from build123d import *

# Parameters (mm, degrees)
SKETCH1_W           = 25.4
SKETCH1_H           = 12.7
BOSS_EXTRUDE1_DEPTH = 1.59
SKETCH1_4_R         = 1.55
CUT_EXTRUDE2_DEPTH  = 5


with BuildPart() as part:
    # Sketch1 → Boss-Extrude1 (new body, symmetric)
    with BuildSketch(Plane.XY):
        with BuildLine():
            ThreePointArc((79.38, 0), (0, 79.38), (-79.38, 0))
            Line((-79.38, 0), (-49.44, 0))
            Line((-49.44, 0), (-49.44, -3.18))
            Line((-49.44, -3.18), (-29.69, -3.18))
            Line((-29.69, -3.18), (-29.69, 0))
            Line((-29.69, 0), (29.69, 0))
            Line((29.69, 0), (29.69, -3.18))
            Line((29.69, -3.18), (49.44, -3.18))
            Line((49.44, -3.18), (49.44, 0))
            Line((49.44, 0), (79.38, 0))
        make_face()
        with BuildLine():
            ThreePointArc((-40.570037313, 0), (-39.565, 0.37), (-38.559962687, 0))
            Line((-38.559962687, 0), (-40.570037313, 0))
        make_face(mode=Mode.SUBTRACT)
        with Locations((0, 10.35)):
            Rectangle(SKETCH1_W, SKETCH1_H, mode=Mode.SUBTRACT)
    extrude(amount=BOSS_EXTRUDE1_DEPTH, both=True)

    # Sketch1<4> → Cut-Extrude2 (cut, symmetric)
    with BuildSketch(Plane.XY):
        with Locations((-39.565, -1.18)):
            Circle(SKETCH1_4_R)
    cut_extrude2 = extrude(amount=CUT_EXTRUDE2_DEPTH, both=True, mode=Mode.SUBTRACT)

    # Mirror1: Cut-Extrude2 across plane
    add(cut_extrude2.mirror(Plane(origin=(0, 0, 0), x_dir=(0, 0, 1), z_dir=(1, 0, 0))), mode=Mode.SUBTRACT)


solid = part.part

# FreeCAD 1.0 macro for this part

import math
import FreeCAD as App
import Part
import Sketcher

V = App.Vector

doc = App.newDocument("Part")
body = doc.addObject("PartDesign::Body", "Body")

sketch1 = body.newObject("Sketcher::SketchObject", "Sketch")
sketch1.AttachmentSupport = (doc.getObject("XY_Plane"), [""])
sketch1.MapMode = "FlatFace"
sketch1.addGeometry([
    Part.ArcOfCircle(Part.Circle(V(0, 0, 0), V(0, 0, 1), 79.4), math.radians(0), math.radians(180)),
    Part.LineSegment(V(-79.4, 0, 0), V(-49.4, 0, 0)),
    Part.LineSegment(V(-49.4, 0, 0), V(-49.4, -3.2, 0)),
    Part.LineSegment(V(-49.4, -3.2, 0), V(-29.7, -3.2, 0)),
    Part.LineSegment(V(-29.7, -3.2, 0), V(-29.7, 0, 0)),
    Part.LineSegment(V(-29.7, 0, 0), V(29.7, 0, 0)),
    Part.LineSegment(V(29.7, 0, 0), V(29.7, -3.2, 0)),
    Part.LineSegment(V(29.7, -3.2, 0), V(49.4, -3.2, 0)),
    Part.LineSegment(V(49.4, -3.2, 0), V(49.4, 0, 0)),
    Part.LineSegment(V(49.4, 0, 0), V(79.4, 0, 0)),
    Part.LineSegment(V(-38.6, 0, 0), V(-40.6, 0, 0)),
    Part.ArcOfCircle(Part.Circle(V(-39.6, -1.2, 0), V(0, 0, 1), 1.6), math.radians(50), math.radians(130)),
    Part.LineSegment(V(12.7, 4, 0), V(-12.7, 4, 0)),
    Part.LineSegment(V(-12.7, 4, 0), V(-12.7, 16.7, 0)),
    Part.LineSegment(V(-12.7, 16.7, 0), V(12.7, 16.7, 0)),
    Part.LineSegment(V(12.7, 16.7, 0), V(12.7, 4, 0)),
], False)
sketch1.addConstraint([
    Sketcher.Constraint("Coincident", 0, 2, 1, 1),
    Sketcher.Constraint("Coincident", 1, 2, 2, 1),
    Sketcher.Constraint("Coincident", 2, 2, 3, 1),
    Sketcher.Constraint("Coincident", 3, 2, 4, 1),
    Sketcher.Constraint("Coincident", 4, 2, 5, 1),
    Sketcher.Constraint("Coincident", 5, 2, 6, 1),
    Sketcher.Constraint("Coincident", 6, 2, 7, 1),
    Sketcher.Constraint("Coincident", 7, 2, 8, 1),
    Sketcher.Constraint("Coincident", 8, 2, 9, 1),
    Sketcher.Constraint("Coincident", 9, 2, 0, 1),
    Sketcher.Constraint("Coincident", 10, 1, 11, 1),
    Sketcher.Constraint("Coincident", 11, 2, 10, 2),
    Sketcher.Constraint("Coincident", 12, 2, 13, 1),
    Sketcher.Constraint("Coincident", 13, 2, 14, 1),
    Sketcher.Constraint("Coincident", 14, 2, 15, 1),
    Sketcher.Constraint("Coincident", 15, 2, 12, 1),
    Sketcher.Constraint("Horizontal", 1),
    Sketcher.Constraint("Vertical", 2),
    Sketcher.Constraint("Horizontal", 3),
    Sketcher.Constraint("Vertical", 4),
    Sketcher.Constraint("Horizontal", 5),
    Sketcher.Constraint("Vertical", 6),
    Sketcher.Constraint("Horizontal", 7),
    Sketcher.Constraint("Vertical", 8),
    Sketcher.Constraint("Horizontal", 9),
    Sketcher.Constraint("Horizontal", 10),
    Sketcher.Constraint("Horizontal", 12),
    Sketcher.Constraint("Vertical", 13),
    Sketcher.Constraint("Horizontal", 14),
    Sketcher.Constraint("Vertical", 15),
    Sketcher.Constraint("Coincident", 0, 3, -1, 1),
    Sketcher.Constraint("Symmetric", 4, 2, 5, 2, -1, 1),
    Sketcher.Constraint("Symmetric", 1, 2, 8, 2, -1, 1),
    Sketcher.Constraint("PointOnObject", 0, 2, -1),
    Sketcher.Constraint("PointOnObject", 10, 1, -1),
    Sketcher.Constraint("Horizontal", 3, 2, 6, 2),
    Sketcher.Constraint("Radius", 0, 79.38),
    Sketcher.Constraint("Radius", 11, 1.55),
    Sketcher.Constraint("DistanceX", 12, 2, 12, 1, 25.4),
    Sketcher.Constraint("DistanceY", 13, 1, 13, 2, 12.7),
    Sketcher.Constraint("DistanceY", -1, 1, 12, 2, 4.0),
    Sketcher.Constraint("DistanceY", 2, 2, 11, 3, 2.0),
    Sketcher.Constraint("DistanceX", 1, 1, 1, 2, 29.94),
    Sketcher.Constraint("DistanceX", 3, 1, 3, 2, 19.75),
    Sketcher.Constraint("DistanceY", 2, 2, 2, 1, 3.18),
    Sketcher.Constraint("DistanceX", 12, 2, -1, 1, 12.7),
    Sketcher.Constraint("DistanceX", 11, 3, -1, 1, 39.565),
])
pad1 = body.newObject("PartDesign::Pad", "Pad")
pad1.Profile = sketch1
pad1.Length = 3.18
pad1.Midplane = True

sketch2 = body.newObject("Sketcher::SketchObject", "Sketch001")
sketch2.AttachmentSupport = (doc.getObject("XY_Plane"), [""])
sketch2.MapMode = "FlatFace"
sketch2.addGeometry(Part.Circle(V(-39.6, -1.2, 0), V(0, 0, 1), 1.6), False)
sketch2.addConstraint([
    Sketcher.Constraint("Diameter", 0, 3.1),
    Sketcher.Constraint("DistanceY", 0, 3, -1, 1, 1.18),
    Sketcher.Constraint("DistanceX", 0, 3, -1, 1, 39.565),
])
pocket1 = body.newObject("PartDesign::Pocket", "Pocket")
pocket1.Profile = sketch2
pocket1.Length = 10
pocket1.Midplane = True
doc.recompute()

mirrored = body.newObject("PartDesign::Mirrored", "Mirrored")
mirrored.Originals = [pocket1]
mirrored.MirrorPlane = (doc.getObject("YZ_Plane"), [""])
body.Tip = mirrored

doc.recompute()
